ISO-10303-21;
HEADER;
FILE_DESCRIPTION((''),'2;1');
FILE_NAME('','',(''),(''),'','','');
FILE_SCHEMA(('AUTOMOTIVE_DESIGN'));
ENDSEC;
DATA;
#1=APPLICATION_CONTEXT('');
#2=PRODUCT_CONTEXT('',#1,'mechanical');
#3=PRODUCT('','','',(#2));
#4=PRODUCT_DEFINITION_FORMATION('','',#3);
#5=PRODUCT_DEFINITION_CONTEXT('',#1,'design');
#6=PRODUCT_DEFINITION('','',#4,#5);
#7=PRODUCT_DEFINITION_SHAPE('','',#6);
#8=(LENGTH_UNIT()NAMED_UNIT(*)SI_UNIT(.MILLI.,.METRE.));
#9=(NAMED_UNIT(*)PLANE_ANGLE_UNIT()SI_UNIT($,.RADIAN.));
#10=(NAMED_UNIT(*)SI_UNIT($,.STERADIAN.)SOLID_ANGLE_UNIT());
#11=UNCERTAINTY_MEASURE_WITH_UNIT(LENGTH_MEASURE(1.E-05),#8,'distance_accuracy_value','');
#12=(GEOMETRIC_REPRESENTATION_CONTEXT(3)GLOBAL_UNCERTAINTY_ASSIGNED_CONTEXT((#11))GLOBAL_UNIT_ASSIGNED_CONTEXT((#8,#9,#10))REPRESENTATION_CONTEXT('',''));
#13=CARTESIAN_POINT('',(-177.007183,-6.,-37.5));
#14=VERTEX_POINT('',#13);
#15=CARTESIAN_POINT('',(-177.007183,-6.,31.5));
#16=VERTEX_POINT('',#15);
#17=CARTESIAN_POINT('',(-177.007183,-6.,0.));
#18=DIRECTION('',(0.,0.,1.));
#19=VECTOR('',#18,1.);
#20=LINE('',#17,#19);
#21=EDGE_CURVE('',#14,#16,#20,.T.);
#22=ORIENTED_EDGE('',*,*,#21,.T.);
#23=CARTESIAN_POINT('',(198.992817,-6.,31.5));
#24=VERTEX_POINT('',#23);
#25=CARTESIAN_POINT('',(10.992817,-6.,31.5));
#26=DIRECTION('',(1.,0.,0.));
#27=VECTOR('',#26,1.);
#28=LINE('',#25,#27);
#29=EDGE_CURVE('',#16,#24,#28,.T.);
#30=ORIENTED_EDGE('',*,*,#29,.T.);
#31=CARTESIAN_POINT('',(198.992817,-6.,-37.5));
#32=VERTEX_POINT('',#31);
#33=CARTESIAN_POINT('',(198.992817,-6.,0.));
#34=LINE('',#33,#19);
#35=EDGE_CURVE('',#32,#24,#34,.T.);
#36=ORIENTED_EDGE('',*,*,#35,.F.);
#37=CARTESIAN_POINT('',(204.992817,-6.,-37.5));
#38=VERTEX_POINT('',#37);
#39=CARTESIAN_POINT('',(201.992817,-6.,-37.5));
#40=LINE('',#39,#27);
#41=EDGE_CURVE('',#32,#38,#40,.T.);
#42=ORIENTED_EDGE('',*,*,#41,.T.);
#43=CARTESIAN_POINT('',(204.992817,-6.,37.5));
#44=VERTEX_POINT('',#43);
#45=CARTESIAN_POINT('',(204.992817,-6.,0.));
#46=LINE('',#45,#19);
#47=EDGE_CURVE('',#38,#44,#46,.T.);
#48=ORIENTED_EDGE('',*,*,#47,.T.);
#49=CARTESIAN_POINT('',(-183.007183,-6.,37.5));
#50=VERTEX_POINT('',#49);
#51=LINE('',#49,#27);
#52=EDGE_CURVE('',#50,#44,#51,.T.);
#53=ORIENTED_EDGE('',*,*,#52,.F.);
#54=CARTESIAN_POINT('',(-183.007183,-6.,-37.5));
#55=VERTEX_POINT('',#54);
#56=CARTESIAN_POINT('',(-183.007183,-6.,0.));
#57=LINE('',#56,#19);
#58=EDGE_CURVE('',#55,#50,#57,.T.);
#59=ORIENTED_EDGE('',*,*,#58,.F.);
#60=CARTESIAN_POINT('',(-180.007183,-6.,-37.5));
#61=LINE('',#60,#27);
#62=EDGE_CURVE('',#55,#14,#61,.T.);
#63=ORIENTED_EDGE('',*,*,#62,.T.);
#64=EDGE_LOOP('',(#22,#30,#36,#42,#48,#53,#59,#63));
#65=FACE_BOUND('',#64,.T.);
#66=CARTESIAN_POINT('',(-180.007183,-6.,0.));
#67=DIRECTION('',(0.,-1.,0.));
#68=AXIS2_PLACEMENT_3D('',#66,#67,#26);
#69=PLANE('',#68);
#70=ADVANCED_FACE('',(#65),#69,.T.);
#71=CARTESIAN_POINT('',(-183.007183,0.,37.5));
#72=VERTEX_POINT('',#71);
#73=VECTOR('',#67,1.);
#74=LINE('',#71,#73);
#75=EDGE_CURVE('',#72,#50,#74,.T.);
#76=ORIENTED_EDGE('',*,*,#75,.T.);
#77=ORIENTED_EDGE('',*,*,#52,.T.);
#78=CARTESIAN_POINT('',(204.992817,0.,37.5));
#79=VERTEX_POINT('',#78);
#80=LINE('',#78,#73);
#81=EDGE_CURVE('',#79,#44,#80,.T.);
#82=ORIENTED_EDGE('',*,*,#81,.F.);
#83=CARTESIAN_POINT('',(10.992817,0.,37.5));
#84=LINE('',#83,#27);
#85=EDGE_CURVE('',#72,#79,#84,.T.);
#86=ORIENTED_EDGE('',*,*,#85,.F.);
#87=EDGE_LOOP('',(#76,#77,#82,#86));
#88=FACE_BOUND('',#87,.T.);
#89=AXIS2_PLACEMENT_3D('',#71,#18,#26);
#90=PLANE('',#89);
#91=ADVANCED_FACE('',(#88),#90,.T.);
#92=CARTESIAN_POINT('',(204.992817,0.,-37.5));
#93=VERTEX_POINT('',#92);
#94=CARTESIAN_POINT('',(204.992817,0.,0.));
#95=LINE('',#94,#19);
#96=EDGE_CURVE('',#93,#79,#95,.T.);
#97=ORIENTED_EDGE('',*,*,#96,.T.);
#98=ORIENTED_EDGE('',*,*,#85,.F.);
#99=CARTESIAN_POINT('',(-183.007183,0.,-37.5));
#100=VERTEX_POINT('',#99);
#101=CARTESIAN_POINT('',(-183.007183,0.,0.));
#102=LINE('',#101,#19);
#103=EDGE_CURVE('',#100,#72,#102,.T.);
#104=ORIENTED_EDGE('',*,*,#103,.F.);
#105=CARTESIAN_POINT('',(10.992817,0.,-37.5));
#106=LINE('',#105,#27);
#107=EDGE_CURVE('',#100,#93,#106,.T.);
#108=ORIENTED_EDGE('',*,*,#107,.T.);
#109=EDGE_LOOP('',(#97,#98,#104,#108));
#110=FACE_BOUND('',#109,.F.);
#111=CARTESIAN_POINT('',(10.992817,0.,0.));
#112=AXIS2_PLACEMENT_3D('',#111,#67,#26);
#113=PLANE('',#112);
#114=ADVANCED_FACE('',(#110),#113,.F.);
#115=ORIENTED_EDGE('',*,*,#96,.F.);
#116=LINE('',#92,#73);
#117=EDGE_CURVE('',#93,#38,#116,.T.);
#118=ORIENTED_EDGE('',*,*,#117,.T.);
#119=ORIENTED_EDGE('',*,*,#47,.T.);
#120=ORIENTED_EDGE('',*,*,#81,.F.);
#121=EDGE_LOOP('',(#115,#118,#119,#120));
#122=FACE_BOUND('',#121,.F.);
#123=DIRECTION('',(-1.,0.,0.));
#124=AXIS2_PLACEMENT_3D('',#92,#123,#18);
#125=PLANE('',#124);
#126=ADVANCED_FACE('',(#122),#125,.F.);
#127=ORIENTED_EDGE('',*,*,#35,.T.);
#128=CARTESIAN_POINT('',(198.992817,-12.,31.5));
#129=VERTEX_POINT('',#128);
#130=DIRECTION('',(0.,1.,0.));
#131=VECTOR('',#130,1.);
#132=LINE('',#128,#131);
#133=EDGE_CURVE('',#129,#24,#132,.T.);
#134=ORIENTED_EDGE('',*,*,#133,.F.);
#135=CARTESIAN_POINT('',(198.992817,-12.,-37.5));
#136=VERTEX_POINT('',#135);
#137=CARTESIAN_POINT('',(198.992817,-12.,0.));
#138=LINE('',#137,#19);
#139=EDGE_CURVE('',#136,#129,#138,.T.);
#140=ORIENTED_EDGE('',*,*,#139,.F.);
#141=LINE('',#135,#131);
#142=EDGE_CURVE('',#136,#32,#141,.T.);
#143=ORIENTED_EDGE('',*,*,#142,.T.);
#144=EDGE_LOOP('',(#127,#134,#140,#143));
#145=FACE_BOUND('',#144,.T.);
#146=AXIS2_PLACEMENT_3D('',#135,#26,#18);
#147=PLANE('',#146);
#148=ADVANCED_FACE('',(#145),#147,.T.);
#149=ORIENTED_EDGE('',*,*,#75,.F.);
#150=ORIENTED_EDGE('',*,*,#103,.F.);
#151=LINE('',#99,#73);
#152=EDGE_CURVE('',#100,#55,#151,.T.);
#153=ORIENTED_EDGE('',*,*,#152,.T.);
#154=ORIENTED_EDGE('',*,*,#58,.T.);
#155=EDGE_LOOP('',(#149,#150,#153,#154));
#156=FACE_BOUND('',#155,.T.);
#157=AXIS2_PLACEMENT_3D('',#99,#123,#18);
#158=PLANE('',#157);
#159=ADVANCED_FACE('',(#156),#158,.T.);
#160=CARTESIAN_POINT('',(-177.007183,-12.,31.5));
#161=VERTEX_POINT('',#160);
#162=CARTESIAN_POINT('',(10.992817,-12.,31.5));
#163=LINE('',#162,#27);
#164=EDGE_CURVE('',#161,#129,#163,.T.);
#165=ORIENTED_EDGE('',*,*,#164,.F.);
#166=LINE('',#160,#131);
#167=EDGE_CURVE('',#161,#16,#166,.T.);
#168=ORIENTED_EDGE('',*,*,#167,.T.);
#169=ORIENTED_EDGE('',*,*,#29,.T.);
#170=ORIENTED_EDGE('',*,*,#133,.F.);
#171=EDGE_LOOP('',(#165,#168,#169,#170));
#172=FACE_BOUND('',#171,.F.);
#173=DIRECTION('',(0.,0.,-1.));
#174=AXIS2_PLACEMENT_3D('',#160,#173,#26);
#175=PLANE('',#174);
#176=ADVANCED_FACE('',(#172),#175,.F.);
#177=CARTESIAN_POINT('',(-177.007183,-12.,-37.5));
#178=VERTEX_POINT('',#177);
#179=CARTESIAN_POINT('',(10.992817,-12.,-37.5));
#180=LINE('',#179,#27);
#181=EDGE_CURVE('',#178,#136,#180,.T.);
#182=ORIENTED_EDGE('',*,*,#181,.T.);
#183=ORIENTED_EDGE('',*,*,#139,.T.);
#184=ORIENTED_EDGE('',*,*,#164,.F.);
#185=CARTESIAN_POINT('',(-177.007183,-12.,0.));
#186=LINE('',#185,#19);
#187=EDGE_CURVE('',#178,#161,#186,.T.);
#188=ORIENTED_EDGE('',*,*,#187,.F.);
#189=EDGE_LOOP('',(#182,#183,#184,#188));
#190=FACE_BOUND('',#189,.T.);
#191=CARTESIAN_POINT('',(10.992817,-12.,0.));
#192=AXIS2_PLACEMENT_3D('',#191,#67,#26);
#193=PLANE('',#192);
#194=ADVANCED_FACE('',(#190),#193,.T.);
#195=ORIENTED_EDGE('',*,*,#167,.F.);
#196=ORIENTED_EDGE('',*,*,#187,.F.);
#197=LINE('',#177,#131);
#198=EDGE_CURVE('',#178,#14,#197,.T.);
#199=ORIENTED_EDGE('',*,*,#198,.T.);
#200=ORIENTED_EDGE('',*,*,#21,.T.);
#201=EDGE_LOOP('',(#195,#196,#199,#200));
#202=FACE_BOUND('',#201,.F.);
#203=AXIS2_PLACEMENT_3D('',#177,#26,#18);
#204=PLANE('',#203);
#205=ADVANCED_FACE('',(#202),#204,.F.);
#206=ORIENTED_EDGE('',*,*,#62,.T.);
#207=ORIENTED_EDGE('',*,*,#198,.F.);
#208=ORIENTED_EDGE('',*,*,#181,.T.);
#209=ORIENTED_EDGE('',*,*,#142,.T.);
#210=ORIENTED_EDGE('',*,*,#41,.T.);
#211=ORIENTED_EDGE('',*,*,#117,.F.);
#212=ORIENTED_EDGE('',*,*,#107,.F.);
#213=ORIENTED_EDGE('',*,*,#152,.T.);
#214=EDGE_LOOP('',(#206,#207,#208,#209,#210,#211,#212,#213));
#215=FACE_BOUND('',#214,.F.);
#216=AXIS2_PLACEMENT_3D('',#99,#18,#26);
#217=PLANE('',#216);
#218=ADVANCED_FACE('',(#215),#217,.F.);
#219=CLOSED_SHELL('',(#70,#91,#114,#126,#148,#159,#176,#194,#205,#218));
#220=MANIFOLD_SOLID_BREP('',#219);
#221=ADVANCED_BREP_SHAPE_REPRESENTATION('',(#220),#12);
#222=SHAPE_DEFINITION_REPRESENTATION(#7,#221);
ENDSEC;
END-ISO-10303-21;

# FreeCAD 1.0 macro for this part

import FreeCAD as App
import Part
import Sketcher

V = App.Vector
Q = App.Units.Quantity

doc = App.newDocument("Part")
params = doc.addObject("Spreadsheet::Sheet", "Params")
for row, (alias, value) in enumerate([
    ("sketch1_width", "388 mm"),
    ("sketch1_height", "75 mm"),
    ("pad1_length", "12 mm"),
    ("sketch2_width", "6 mm"),
    ("sketch2_height", "75 mm"),
    ("pocket1_length", "6 mm"),
    ("sketch3_width", "6 mm"),
    ("sketch3_height", "75 mm"),
    ("pocket2_length", "6 mm"),
    ("sketch4_width", "376 mm"),
    ("sketch4_height", "6 mm"),
    ("pocket3_length", "6 mm"),
], start=1):
    params.set(f"A{row}", alias)
    params.set(f"B{row}", "=" + value)
    params.setAlias(f"B{row}", alias)

body = doc.addObject("PartDesign::Body", "Body")

sketch1 = doc.addObject("Sketcher::SketchObject", "Sketch")
body.addObject(sketch1)
sketch1.AttachmentSupport = (doc.XZ_Plane, [""])
sketch1.MapMode = "FlatFace"
sketch1.addGeometry([
    Part.LineSegment(V(-183, 38, 0), V(-183, -38, 0)),
    Part.LineSegment(V(-183, -38, 0), V(205, -38, 0)),
    Part.LineSegment(V(205, -38, 0), V(205, 38, 0)),
    Part.LineSegment(V(205, 38, 0), V(-183, 38, 0)),
], False)
sketch1.addConstraint([
    Sketcher.Constraint("Coincident", 0, 2, 1, 1),
    Sketcher.Constraint("Coincident", 1, 2, 2, 1),
    Sketcher.Constraint("Coincident", 2, 2, 3, 1),
    Sketcher.Constraint("Coincident", 3, 2, 0, 1),
    Sketcher.Constraint("Vertical", 0),
    Sketcher.Constraint("Horizontal", 1),
    Sketcher.Constraint("Vertical", 2),
    Sketcher.Constraint("Horizontal", 3),
    Sketcher.Constraint("DistanceX", 1, 1, 1, 2, Q("388 mm")),
    Sketcher.Constraint("DistanceY", 0, 2, 0, 1, Q("75 mm")),
    Sketcher.Constraint("DistanceY", 0, 2, -1, 1, Q("37.5 mm")),
    Sketcher.Constraint("DistanceX", 0, 2, -1, 1, Q("183.007183 mm")),
])
sketch1.setExpression("Constraints[8]", "Params.sketch1_width")
sketch1.setExpression("Constraints[9]", "Params.sketch1_height")
pad1 = doc.addObject("PartDesign::Pad", "Pad")
body.addObject(pad1)
pad1.Profile = sketch1
pad1.setExpression("Length", "Params.pad1_length")

sketch2 = doc.addObject("Sketcher::SketchObject", "Sketch001")
body.addObject(sketch2)
sketch2.AttachmentSupport = (doc.XZ_Plane, [""])
sketch2.MapMode = "FlatFace"
sketch2.AttachmentOffset = App.Placement(V(0, 0, 12), App.Rotation())
sketch2.addGeometry([
    Part.LineSegment(V(-183, 38, 0), V(-183, -38, 0)),
    Part.LineSegment(V(-183, -38, 0), V(-177, -38, 0)),
    Part.LineSegment(V(-177, -38, 0), V(-177, 38, 0)),
    Part.LineSegment(V(-177, 38, 0), V(-183, 38, 0)),
], False)
sketch2.addConstraint([
    Sketcher.Constraint("Coincident", 0, 2, 1, 1),
    Sketcher.Constraint("Coincident", 1, 2, 2, 1),
    Sketcher.Constraint("Coincident", 2, 2, 3, 1),
    Sketcher.Constraint("Coincident", 3, 2, 0, 1),
    Sketcher.Constraint("Vertical", 0),
    Sketcher.Constraint("Horizontal", 1),
    Sketcher.Constraint("Vertical", 2),
    Sketcher.Constraint("Horizontal", 3),
    Sketcher.Constraint("DistanceX", 1, 1, 1, 2, Q("6 mm")),
    Sketcher.Constraint("DistanceY", 0, 2, 0, 1, Q("75 mm")),
    Sketcher.Constraint("DistanceY", 0, 2, -1, 1, Q("37.5 mm")),
    Sketcher.Constraint("DistanceX", 0, 2, -1, 1, Q("183.007183 mm")),
])
sketch2.setExpression("Constraints[8]", "Params.sketch2_width")
sketch2.setExpression("Constraints[9]", "Params.sketch2_height")
pocket1 = doc.addObject("PartDesign::Pocket", "Pocket")
body.addObject(pocket1)
pocket1.Profile = sketch2
pocket1.setExpression("Length", "Params.pocket1_length")

sketch3 = doc.addObject("Sketcher::SketchObject", "Sketch002")
body.addObject(sketch3)
sketch3.AttachmentSupport = (doc.XZ_Plane, [""])
sketch3.MapMode = "FlatFace"
sketch3.AttachmentOffset = App.Placement(V(0, 0, 12), App.Rotation())
sketch3.addGeometry([
    Part.LineSegment(V(199, 38, 0), V(199, -38, 0)),
    Part.LineSegment(V(199, -38, 0), V(205, -38, 0)),
    Part.LineSegment(V(205, -38, 0), V(205, 38, 0)),
    Part.LineSegment(V(205, 38, 0), V(199, 38, 0)),
], False)
sketch3.addConstraint([
    Sketcher.Constraint("Coincident", 0, 2, 1, 1),
    Sketcher.Constraint("Coincident", 1, 2, 2, 1),
    Sketcher.Constraint("Coincident", 2, 2, 3, 1),
    Sketcher.Constraint("Coincident", 3, 2, 0, 1),
    Sketcher.Constraint("Vertical", 0),
    Sketcher.Constraint("Horizontal", 1),
    Sketcher.Constraint("Vertical", 2),
    Sketcher.Constraint("Horizontal", 3),
    Sketcher.Constraint("DistanceX", 1, 1, 1, 2, Q("6 mm")),
    Sketcher.Constraint("DistanceY", 0, 2, 0, 1, Q("75 mm")),
    Sketcher.Constraint("DistanceY", 0, 2, -1, 1, Q("37.5 mm")),
    Sketcher.Constraint("DistanceX", -1, 1, 0, 2, Q("198.992817 mm")),
])
sketch3.setExpression("Constraints[8]", "Params.sketch3_width")
sketch3.setExpression("Constraints[9]", "Params.sketch3_height")
pocket2 = doc.addObject("PartDesign::Pocket", "Pocket001")
body.addObject(pocket2)
pocket2.Profile = sketch3
pocket2.setExpression("Length", "Params.pocket2_length")

sketch4 = doc.addObject("Sketcher::SketchObject", "Sketch003")
body.addObject(sketch4)
sketch4.AttachmentSupport = (doc.XZ_Plane, [""])
sketch4.MapMode = "FlatFace"
sketch4.AttachmentOffset = App.Placement(V(0, 0, 12), App.Rotation())
sketch4.addGeometry([
    Part.LineSegment(V(-177, 38, 0), V(-177, 32, 0)),
    Part.LineSegment(V(-177, 32, 0), V(199, 32, 0)),
    Part.LineSegment(V(199, 32, 0), V(199, 38, 0)),
    Part.LineSegment(V(199, 38, 0), V(-177, 38, 0)),
], False)
sketch4.addConstraint([
    Sketcher.Constraint("Coincident", 0, 2, 1, 1),
    Sketcher.Constraint("Coincident", 1, 2, 2, 1),
    Sketcher.Constraint("Coincident", 2, 2, 3, 1),
    Sketcher.Constraint("Coincident", 3, 2, 0, 1),
    Sketcher.Constraint("Vertical", 0),
    Sketcher.Constraint("Horizontal", 1),
    Sketcher.Constraint("Vertical", 2),
    Sketcher.Constraint("Horizontal", 3),
    Sketcher.Constraint("DistanceX", 1, 1, 1, 2, Q("376 mm")),
    Sketcher.Constraint("DistanceY", 0, 2, 0, 1, Q("6 mm")),
    Sketcher.Constraint("DistanceY", -1, 1, 0, 2, Q("31.5 mm")),
    Sketcher.Constraint("DistanceX", 0, 2, -1, 1, Q("177.007183 mm")),
])
sketch4.setExpression("Constraints[8]", "Params.sketch4_width")
sketch4.setExpression("Constraints[9]", "Params.sketch4_height")
pocket3 = doc.addObject("PartDesign::Pocket", "Pocket002")
body.addObject(pocket3)
pocket3.Profile = sketch4
pocket3.setExpression("Length", "Params.pocket3_length")

doc.recompute()
